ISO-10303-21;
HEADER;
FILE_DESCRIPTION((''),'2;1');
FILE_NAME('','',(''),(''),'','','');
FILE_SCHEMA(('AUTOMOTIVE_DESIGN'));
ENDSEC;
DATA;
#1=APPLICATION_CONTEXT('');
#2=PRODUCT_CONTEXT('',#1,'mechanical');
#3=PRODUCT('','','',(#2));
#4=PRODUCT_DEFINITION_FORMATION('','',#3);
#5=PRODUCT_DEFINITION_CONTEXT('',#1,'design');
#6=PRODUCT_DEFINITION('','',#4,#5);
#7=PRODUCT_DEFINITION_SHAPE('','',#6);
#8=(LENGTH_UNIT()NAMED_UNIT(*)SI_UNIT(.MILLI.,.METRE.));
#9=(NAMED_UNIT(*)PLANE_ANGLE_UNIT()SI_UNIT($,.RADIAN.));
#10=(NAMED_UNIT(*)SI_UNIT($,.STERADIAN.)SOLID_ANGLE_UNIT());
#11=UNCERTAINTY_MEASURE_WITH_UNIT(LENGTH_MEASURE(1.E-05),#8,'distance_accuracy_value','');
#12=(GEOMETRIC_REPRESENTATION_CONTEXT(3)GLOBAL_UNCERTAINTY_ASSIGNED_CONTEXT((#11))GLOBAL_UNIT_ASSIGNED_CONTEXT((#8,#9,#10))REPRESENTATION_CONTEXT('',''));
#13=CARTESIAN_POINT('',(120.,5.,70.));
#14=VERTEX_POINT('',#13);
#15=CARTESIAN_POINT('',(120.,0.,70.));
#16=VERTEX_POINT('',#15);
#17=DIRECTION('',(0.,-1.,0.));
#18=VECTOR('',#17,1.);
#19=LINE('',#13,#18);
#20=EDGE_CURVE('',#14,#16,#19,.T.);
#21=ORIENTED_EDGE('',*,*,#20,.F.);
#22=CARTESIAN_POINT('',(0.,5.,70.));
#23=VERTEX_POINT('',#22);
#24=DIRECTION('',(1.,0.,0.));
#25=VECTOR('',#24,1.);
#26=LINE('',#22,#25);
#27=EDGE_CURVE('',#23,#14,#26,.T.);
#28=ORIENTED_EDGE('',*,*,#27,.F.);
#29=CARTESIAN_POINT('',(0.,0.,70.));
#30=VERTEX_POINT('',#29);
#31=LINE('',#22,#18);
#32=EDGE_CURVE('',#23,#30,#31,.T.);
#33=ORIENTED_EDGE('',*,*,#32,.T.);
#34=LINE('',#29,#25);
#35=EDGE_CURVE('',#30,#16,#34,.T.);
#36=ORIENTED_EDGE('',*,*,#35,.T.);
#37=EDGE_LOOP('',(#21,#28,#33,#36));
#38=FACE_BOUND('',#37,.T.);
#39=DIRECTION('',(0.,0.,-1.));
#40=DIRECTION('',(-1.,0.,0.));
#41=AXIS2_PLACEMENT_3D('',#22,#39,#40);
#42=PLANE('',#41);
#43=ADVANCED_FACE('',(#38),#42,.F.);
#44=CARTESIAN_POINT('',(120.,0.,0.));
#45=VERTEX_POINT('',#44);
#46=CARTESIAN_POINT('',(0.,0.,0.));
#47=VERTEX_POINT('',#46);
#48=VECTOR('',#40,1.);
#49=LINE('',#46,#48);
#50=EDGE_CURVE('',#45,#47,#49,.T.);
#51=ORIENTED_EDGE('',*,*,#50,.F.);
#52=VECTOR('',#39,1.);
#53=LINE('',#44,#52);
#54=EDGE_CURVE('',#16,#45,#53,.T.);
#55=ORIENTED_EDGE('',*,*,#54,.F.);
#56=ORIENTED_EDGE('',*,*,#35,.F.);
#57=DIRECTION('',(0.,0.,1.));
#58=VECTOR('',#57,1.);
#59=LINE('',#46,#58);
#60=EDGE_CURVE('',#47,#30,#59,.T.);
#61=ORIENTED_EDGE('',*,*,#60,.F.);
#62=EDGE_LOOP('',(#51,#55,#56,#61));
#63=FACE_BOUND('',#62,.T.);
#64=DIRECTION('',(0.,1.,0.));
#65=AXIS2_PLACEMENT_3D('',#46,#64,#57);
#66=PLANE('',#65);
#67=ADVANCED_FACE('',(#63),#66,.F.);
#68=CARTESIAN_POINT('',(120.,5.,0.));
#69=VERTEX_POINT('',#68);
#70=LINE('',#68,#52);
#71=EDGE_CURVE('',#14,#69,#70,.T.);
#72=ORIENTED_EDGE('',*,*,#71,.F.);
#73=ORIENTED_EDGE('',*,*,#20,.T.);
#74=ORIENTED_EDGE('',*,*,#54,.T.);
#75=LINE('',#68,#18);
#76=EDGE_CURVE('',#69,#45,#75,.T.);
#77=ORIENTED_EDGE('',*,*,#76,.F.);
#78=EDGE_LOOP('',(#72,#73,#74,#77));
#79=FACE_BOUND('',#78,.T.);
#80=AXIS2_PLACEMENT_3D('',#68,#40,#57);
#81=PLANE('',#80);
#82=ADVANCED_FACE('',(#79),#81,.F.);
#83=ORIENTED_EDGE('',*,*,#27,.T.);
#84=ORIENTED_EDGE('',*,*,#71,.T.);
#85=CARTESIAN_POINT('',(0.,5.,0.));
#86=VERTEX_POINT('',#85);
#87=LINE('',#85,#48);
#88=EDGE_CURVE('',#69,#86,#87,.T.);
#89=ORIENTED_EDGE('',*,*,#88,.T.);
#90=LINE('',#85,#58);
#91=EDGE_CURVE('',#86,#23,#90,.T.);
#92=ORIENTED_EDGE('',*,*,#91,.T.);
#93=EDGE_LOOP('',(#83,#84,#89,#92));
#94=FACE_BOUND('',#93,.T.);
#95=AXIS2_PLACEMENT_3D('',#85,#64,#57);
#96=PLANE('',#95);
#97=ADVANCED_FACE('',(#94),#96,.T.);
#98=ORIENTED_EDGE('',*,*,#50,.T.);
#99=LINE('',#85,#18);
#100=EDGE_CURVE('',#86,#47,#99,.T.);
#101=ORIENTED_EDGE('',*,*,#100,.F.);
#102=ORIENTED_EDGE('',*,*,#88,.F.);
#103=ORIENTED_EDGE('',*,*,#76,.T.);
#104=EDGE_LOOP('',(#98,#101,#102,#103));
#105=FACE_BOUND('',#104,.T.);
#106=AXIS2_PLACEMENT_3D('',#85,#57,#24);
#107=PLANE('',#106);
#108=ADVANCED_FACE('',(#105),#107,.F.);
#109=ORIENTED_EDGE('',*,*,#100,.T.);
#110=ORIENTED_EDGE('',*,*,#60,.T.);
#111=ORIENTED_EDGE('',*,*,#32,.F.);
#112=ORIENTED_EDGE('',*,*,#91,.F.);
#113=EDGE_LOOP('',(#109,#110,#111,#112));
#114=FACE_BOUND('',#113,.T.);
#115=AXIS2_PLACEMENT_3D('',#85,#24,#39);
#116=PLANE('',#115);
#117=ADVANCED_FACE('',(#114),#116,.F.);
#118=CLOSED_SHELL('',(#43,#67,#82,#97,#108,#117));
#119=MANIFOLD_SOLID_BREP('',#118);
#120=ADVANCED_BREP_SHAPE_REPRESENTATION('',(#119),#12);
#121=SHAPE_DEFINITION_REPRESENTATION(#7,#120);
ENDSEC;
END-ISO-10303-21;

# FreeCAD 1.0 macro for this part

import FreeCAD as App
import Part
import Sketcher

V = App.Vector
Q = App.Units.Quantity

doc = App.newDocument("Part")
body = doc.addObject("PartDesign::Body", "Body")

sketch1 = doc.addObject("Sketcher::SketchObject", "Sketch")
body.addObject(sketch1)
sketch1.AttachmentSupport = (doc.XZ_Plane, [""])
sketch1.MapMode = "FlatFace"
sketch1.addGeometry([
    Part.LineSegment(V(0, 0, 0), V(0, 70, 0)),
    Part.LineSegment(V(0, 70, 0), V(120, 70, 0)),
    Part.LineSegment(V(120, 70, 0), V(120, 0, 0)),
    Part.LineSegment(V(120, 0, 0), V(0, 0, 0)),
], False)
sketch1.addConstraint([
    Sketcher.Constraint("Coincident", 0, 2, 1, 1),
    Sketcher.Constraint("Coincident", 1, 2, 2, 1),
    Sketcher.Constraint("Coincident", 2, 2, 3, 1),
    Sketcher.Constraint("Coincident", 3, 2, 0, 1),
    Sketcher.Constraint("Vertical", 0),
    Sketcher.Constraint("Horizontal", 1),
    Sketcher.Constraint("Vertical", 2),
    Sketcher.Constraint("Horizontal", 3),
    Sketcher.Constraint("Coincident", 3, 2, -1, 1),
    Sketcher.Constraint("DistanceX", 1, 1, 1, 2, Q("120 mm")),
    Sketcher.Constraint("DistanceY", 0, 1, 0, 2, Q("70 mm")),
])
pad1 = doc.addObject("PartDesign::Pad", "Pad")
body.addObject(pad1)
pad1.Profile = sketch1
pad1.Length = 5
pad1.Reversed = True

doc.recompute()
